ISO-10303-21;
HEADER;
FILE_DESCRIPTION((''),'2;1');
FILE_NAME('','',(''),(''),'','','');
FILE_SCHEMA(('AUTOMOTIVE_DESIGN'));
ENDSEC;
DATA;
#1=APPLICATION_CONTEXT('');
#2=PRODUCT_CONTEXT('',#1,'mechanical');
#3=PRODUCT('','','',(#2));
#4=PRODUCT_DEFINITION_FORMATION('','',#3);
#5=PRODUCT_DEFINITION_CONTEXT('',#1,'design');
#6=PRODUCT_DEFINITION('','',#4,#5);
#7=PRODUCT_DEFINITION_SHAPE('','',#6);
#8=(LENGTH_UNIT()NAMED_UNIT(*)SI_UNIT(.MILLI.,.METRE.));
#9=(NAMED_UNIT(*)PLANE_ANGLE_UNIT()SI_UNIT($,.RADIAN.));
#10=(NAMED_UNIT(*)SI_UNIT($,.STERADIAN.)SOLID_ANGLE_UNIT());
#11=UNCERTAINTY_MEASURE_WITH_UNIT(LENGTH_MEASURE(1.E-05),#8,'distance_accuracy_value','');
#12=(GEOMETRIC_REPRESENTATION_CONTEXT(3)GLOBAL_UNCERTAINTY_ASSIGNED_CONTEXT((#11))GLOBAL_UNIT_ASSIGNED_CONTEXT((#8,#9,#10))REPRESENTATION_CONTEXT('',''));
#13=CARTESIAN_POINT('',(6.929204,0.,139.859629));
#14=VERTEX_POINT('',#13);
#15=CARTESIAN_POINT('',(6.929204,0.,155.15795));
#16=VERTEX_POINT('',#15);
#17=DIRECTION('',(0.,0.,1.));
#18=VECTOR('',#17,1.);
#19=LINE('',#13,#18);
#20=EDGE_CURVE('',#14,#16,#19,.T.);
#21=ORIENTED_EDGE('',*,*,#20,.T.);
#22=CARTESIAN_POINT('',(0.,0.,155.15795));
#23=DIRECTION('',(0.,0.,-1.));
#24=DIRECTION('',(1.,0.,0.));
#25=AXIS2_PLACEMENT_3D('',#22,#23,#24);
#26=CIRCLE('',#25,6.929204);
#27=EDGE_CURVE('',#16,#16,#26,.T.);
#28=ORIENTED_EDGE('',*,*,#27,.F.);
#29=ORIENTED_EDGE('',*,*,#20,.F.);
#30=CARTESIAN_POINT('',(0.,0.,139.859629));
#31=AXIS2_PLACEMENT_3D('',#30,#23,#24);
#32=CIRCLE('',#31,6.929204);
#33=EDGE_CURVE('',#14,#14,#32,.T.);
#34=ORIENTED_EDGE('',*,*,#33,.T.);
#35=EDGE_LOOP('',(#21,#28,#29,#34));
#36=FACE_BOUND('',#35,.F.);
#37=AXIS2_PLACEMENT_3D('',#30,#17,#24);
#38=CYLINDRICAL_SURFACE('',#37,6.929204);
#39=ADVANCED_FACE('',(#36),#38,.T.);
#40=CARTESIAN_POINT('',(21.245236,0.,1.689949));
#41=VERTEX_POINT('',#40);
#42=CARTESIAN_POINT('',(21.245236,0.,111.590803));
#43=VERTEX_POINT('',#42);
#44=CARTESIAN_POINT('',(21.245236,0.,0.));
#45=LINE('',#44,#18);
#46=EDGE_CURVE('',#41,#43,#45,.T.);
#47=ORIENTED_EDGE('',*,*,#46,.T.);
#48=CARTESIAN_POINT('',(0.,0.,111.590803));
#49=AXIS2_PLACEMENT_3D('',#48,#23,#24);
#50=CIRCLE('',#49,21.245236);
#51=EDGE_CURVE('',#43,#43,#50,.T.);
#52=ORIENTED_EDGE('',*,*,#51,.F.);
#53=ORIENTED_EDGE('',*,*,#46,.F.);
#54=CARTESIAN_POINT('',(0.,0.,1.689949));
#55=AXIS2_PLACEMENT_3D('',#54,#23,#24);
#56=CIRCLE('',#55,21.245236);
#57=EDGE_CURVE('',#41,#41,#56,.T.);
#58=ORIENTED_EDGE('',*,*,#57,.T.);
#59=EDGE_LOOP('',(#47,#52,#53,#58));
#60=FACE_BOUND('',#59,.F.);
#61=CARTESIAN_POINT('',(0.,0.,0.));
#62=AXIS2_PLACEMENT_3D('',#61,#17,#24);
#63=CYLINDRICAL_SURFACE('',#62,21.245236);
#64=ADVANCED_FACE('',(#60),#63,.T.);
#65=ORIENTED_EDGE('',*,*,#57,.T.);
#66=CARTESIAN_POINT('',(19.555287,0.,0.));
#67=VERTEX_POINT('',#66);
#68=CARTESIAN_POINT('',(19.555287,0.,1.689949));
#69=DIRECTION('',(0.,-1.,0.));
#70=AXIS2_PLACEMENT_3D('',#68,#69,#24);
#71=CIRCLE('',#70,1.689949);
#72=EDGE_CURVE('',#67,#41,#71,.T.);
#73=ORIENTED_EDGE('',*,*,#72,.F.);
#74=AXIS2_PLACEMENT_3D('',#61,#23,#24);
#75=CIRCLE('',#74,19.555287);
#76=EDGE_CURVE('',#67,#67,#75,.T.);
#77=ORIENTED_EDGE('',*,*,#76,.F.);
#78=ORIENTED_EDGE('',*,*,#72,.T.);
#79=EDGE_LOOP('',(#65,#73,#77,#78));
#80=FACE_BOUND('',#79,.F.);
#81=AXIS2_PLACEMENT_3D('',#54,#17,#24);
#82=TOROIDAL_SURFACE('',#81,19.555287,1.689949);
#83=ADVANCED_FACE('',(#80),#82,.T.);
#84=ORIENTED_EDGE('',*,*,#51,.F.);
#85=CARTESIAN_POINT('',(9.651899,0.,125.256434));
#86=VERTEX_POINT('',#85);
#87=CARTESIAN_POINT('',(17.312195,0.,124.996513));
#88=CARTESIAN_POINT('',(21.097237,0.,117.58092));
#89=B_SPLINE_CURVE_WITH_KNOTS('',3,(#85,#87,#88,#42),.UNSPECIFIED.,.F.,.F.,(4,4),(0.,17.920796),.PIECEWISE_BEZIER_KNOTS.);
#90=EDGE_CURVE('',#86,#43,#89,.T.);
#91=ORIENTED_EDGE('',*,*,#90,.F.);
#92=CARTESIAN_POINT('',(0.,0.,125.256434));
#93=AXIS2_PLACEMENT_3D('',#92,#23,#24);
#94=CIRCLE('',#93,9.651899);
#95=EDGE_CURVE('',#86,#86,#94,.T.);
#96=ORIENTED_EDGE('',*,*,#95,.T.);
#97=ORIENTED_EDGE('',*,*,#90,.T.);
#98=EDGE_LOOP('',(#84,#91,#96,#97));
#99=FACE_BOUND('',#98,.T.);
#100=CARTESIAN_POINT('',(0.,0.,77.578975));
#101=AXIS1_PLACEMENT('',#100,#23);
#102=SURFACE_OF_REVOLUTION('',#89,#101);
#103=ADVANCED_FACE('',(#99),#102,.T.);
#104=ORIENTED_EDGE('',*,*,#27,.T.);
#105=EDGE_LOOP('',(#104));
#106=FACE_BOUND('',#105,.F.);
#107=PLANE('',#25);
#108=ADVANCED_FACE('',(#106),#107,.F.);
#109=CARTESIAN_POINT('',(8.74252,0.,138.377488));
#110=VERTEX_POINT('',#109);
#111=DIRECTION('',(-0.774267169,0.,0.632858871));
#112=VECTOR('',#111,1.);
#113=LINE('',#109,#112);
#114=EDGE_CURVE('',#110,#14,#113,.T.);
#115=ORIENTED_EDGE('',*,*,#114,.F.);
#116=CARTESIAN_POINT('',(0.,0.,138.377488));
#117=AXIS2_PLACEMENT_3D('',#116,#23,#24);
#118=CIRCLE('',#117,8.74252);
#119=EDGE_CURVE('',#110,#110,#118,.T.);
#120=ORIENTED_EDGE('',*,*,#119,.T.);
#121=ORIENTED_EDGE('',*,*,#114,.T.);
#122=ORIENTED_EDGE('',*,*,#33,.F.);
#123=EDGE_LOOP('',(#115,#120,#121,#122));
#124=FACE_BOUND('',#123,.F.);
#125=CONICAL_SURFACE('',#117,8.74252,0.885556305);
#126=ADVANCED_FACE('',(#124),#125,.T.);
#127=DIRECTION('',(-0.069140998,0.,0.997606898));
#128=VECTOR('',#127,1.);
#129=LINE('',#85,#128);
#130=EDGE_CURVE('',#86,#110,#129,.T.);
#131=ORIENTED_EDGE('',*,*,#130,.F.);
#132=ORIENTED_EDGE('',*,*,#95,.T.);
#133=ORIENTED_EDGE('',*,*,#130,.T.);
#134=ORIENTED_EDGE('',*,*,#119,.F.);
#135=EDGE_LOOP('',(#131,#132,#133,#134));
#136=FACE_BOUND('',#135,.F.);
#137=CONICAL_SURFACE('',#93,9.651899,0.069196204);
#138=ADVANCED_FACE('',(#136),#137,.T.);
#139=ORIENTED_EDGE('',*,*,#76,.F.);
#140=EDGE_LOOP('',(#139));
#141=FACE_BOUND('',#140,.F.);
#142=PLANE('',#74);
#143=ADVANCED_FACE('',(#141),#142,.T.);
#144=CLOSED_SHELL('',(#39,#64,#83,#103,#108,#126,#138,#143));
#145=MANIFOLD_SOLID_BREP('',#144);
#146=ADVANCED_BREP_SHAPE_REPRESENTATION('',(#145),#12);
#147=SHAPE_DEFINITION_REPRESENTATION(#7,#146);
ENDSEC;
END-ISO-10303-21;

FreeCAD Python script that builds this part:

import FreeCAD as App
import Part
import Sketcher


def edges_at(feature, points):
    """Names of the edges that pass closest to the given points."""
    edges = feature.Shape.Edges
    near = lambda p: min(range(len(edges)), key=lambda i: edges[i].distToShape(Part.Vertex(*p))[0])
    return sorted({f"Edge{near(p) + 1}" for p in points})

doc = App.newDocument("Part")
body = doc.addObject("PartDesign::Body", "Body")

# Sketch on XZ plane
sketch1 = body.newObject("Sketcher::SketchObject", "Sketch")
sketch1.AttachmentSupport = (doc.getObject("XZ_Plane"), [""])
sketch1.MapMode = "FlatFace"
sketch1.addGeometry(Part.LineSegment(App.Vector(0, 155.15795, 0), App.Vector(0, 0, 0)), False)
sketch1.addGeometry(Part.LineSegment(App.Vector(0, 0, 0), App.Vector(21.245236, 0, 0)), False)
sketch1.addGeometry(Part.LineSegment(App.Vector(21.245236, 0, 0), App.Vector(21.245236, 111.590803, 0)), False)
sketch1.addGeometry(Part.BSplineCurve([App.Vector(9.651899, 125.256434, 0), App.Vector(17.312195, 124.996513, 0), App.Vector(21.097237, 117.58092, 0), App.Vector(21.245236, 111.590803, 0)], [4, 4], [0, 17.920796], False, 3, [1, 1, 1, 1], False), False)
sketch1.addGeometry(Part.LineSegment(App.Vector(9.651899, 125.256434, 0), App.Vector(8.74252, 138.377488, 0)), False)
sketch1.addGeometry(Part.LineSegment(App.Vector(8.74252, 138.377488, 0), App.Vector(6.929204, 139.859629, 0)), False)
sketch1.addGeometry(Part.LineSegment(App.Vector(6.929204, 139.859629, 0), App.Vector(6.929204, 155.15795, 0)), False)
sketch1.addGeometry(Part.LineSegment(App.Vector(6.929204, 155.15795, 0), App.Vector(0, 155.15795, 0)), False)
sketch1.addConstraint(Sketcher.Constraint("Block", 3))
sketch1.addConstraint(Sketcher.Constraint("Coincident", 0, 2, 1, 1))
sketch1.addConstraint(Sketcher.Constraint("Coincident", 1, 2, 2, 1))
sketch1.addConstraint(Sketcher.Constraint("Coincident", 2, 2, 3, 2))
sketch1.addConstraint(Sketcher.Constraint("Coincident", 3, 1, 4, 1))
sketch1.addConstraint(Sketcher.Constraint("Coincident", 4, 2, 5, 1))
sketch1.addConstraint(Sketcher.Constraint("Coincident", 5, 2, 6, 1))
sketch1.addConstraint(Sketcher.Constraint("Coincident", 6, 2, 7, 1))
sketch1.addConstraint(Sketcher.Constraint("Coincident", 7, 2, 0, 1))
sketch1.addConstraint(Sketcher.Constraint("Vertical", 0))
sketch1.addConstraint(Sketcher.Constraint("Horizontal", 1))
sketch1.addConstraint(Sketcher.Constraint("Vertical", 2))
sketch1.addConstraint(Sketcher.Constraint("Vertical", 6))
sketch1.addConstraint(Sketcher.Constraint("Horizontal", 7))
sketch1.addConstraint(Sketcher.Constraint("Coincident", 0, 2, -1, 1))
sketch1.addConstraint(Sketcher.Constraint("DistanceY", 0, 2, 0, 1, 155.15795))
sketch1.addConstraint(Sketcher.Constraint("DistanceY", 6, 1, 6, 2, 15.298321))
sketch1.addConstraint(Sketcher.Constraint("Distance", 4, 13.152529))
sketch1.addConstraint(Sketcher.Constraint("DistanceX", 7, 2, 7, 1, 6.929204))
sketch1.addConstraint(Sketcher.Constraint("DistanceX", -1, 1, 4, 2, 8.74252))
revolution = body.newObject("PartDesign::Revolution", "Revolution")
revolution.Profile = sketch1
revolution.ReferenceAxis = (sketch1, ["V_Axis"])
revolution.Angle = 360
doc.recompute()

fillet = body.newObject("PartDesign::Fillet", "Fillet")
fillet.Base = (revolution, edges_at(revolution, [(-21.245, 0, 0)]))
fillet.Radius = 1.689949

doc.recompute()
